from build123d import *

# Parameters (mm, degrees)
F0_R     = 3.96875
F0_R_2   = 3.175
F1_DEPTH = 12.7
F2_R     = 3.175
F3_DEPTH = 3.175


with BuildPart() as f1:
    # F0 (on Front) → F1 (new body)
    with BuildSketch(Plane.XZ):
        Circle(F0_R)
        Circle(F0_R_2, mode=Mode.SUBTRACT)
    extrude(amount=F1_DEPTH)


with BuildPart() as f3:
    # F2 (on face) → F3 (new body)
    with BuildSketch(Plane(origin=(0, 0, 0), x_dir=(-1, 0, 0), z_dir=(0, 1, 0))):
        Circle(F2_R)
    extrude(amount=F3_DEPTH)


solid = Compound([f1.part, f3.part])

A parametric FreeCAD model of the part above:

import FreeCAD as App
import Part
import Sketcher
Q = App.Units.Quantity

doc = App.newDocument("Part")
body = doc.addObject("PartDesign::Body", "Body")

sketch1 = body.newObject("Sketcher::SketchObject", "Sketch")
sketch1.AttachmentSupport = (doc.getObject("XZ_Plane"), [""])
sketch1.MapMode = "FlatFace"
sketch1.addGeometry([
    Part.Circle(App.Vector(0, 0, 0), App.Vector(0, 0, 1), 4),
    Part.Circle(App.Vector(0, 0, 0), App.Vector(0, 0, 1), 3.2),
], False)
sketch1.addConstraint([
    Sketcher.Constraint("Coincident", 0, 3, -1, 1),
    Sketcher.Constraint("Coincident", 1, 3, -1, 1),
    Sketcher.Constraint("Diameter", 1, Q("0.25 in")),
    Sketcher.Constraint("Diameter", 0, Q("0.3125 in")),
])
pad1 = body.newObject("PartDesign::Pad", "Pad")
pad1.Profile = sketch1
pad1.Length = Q("0.5 in")
body2 = doc.addObject("PartDesign::Body", "Body001")

sketch2 = body2.newObject("Sketcher::SketchObject", "Sketch001")
sketch2.AttachmentSupport = (doc.getObject("XZ_Plane001"), [""])
sketch2.MapMode = "FlatFace"
sketch2.addGeometry(Part.Circle(App.Vector(0, 0, 0), App.Vector(0, 0, 1), 3.2), False)
sketch2.addConstraint([
    Sketcher.Constraint("Coincident", 0, 3, -1, 1),
    Sketcher.Constraint("Diameter", 0, Q("0.25 in")),
])
pad2 = body2.newObject("PartDesign::Pad", "Pad001")
pad2.Profile = sketch2
pad2.Length = Q("0.125 in")
pad2.Reversed = True

doc.recompute()
